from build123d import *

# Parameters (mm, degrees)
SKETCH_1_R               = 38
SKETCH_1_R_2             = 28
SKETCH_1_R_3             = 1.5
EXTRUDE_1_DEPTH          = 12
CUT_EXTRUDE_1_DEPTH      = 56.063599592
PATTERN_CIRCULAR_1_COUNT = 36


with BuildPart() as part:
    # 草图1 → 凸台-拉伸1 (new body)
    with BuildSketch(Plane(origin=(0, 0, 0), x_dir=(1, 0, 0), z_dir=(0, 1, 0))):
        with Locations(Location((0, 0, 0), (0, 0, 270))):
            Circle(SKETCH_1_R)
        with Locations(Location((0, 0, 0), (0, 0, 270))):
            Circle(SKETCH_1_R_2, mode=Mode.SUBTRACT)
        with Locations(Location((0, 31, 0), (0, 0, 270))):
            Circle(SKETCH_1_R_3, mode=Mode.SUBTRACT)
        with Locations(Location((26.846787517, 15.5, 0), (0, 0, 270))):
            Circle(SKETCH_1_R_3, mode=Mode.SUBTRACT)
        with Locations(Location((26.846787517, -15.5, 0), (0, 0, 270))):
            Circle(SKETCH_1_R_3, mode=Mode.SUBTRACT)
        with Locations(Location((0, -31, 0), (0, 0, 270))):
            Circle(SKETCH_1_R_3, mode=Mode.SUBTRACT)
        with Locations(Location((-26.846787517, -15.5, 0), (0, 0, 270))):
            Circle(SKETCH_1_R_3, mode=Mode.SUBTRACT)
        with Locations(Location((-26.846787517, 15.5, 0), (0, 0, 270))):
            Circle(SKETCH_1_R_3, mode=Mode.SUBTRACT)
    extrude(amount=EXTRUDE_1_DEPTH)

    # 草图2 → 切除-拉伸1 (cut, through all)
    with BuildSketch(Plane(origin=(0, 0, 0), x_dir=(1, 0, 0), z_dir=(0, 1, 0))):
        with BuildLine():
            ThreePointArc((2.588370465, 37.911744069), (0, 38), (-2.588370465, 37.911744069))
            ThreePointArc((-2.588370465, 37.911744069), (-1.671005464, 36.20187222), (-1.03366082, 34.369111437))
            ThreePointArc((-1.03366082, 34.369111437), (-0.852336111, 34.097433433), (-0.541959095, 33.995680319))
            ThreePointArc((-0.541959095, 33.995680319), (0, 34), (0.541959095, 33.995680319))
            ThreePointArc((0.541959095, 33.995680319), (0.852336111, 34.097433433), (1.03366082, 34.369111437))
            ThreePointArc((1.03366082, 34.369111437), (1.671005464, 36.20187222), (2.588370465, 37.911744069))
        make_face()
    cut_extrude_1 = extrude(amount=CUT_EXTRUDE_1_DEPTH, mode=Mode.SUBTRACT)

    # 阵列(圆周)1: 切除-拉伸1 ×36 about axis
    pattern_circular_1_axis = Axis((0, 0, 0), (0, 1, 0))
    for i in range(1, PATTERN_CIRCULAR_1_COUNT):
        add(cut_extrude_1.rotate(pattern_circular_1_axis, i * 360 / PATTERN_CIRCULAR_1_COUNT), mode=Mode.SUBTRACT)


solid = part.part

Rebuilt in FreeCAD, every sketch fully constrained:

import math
import FreeCAD as App
import Part
import Sketcher
from FreeCAD import Vector

doc = App.newDocument("Part")
body = doc.addObject("PartDesign::Body", "Body")

sketch1 = body.newObject("Sketcher::SketchObject", "Sketch")
sketch1.AttachmentSupport = (doc.getObject("XZ_Plane"), [""])
sketch1.MapMode = "FlatFace"
sketch1.addGeometry(Part.Circle(Vector(0, 0, 0), Vector(0, 0, 1), 38), False)
sketch1.addGeometry(Part.Circle(Vector(-26.8, -15.5, 0), Vector(0, 0, 1), 1.5), False)
sketch1.addGeometry(Part.Circle(Vector(0, -31, 0), Vector(0, 0, 1), 1.5), False)
sketch1.addGeometry(Part.Circle(Vector(-26.8, 15.5, 0), Vector(0, 0, 1), 1.5), False)
sketch1.addGeometry(Part.Circle(Vector(26.8, -15.5, 0), Vector(0, 0, 1), 1.5), False)
sketch1.addGeometry(Part.Circle(Vector(0, 0, 0), Vector(0, 0, 1), 28), False)
sketch1.addGeometry(Part.Circle(Vector(0, 31, 0), Vector(0, 0, 1), 1.5), False)
sketch1.addGeometry(Part.Circle(Vector(26.8, 15.5, 0), Vector(0, 0, 1), 1.5), False)
sketch1.addConstraint(Sketcher.Constraint("Coincident", 0, 3, -1, 1))
sketch1.addConstraint(Sketcher.Constraint("Coincident", 5, 3, -1, 1))
sketch1.addConstraint(Sketcher.Constraint("Equal", 1, 2))
sketch1.addConstraint(Sketcher.Constraint("Equal", 2, 3))
sketch1.addConstraint(Sketcher.Constraint("Equal", 3, 4))
sketch1.addConstraint(Sketcher.Constraint("Equal", 4, 6))
sketch1.addConstraint(Sketcher.Constraint("Equal", 6, 7))
sketch1.addConstraint(Sketcher.Constraint("Symmetric", 3, 3, 4, 3, -1, 1))
sketch1.addConstraint(Sketcher.Constraint("Symmetric", 2, 3, 6, 3, -1, 1))
sketch1.addConstraint(Sketcher.Constraint("Symmetric", 1, 3, 7, 3, -1, 1))
sketch1.addConstraint(Sketcher.Constraint("Symmetric", 1, 3, 4, 3, -2))
sketch1.addConstraint(Sketcher.Constraint("PointOnObject", 2, 3, -2))
sketch1.addConstraint(Sketcher.Constraint("Diameter", 0, 76.0))
sketch1.addConstraint(Sketcher.Constraint("Diameter", 1, 3.0))
sketch1.addConstraint(Sketcher.Constraint("Diameter", 5, 56.0))
sketch1.addConstraint(Sketcher.Constraint("DistanceY", 2, 3, -1, 1, 31.0))
sketch1.addConstraint(Sketcher.Constraint("DistanceY", 1, 3, 3, 3, 31.0))
sketch1.addConstraint(Sketcher.Constraint("DistanceX", 1, 3, -1, 1, 26.846788))
pad1 = body.newObject("PartDesign::Pad", "Pad")
pad1.Profile = sketch1
pad1.Length = 12
pad1.Reversed = True

sketch2 = body.newObject("Sketcher::SketchObject", "Sketch001")
sketch2.AttachmentSupport = (doc.getObject("XZ_Plane"), [""])
sketch2.MapMode = "FlatFace"
sketch2.addGeometry(Part.ArcOfCircle(Part.Circle(Vector(0, 0, 0), Vector(0, 0, 1), 38), math.radians(-93.91), math.radians(-86.09)), False)
sketch2.addGeometry(Part.ArcOfCircle(Part.Circle(Vector(-12.95, -31.25, 0), Vector(0, 0, 1), 12.31), math.radians(-32.73), math.radians(-14.66)), False)
sketch2.addGeometry(Part.ArcOfCircle(Part.Circle(Vector(-0.55, -34.5, 0), Vector(0, 0, 1), 0.5), math.radians(89), math.radians(165)), False)
sketch2.addGeometry(Part.ArcOfCircle(Part.Circle(Vector(0, 0, 0), Vector(0, 0, 1), 34), math.radians(-90.91), math.radians(-89.09)), False)
sketch2.addGeometry(Part.ArcOfCircle(Part.Circle(Vector(0.55, -34.5, 0), Vector(0, 0, 1), 0.5), math.radians(15), math.radians(91)), False)
sketch2.addGeometry(Part.ArcOfCircle(Part.Circle(Vector(12.95, -31.25, 0), Vector(0, 0, 1), 12.31), math.radians(-165.34), math.radians(-147.27)), False)
sketch2.addConstraint(Sketcher.Constraint("Coincident", 0, 1, 1, 1))
sketch2.addConstraint(Sketcher.Constraint("Tangent", 1, 2, 2, 2))
sketch2.addConstraint(Sketcher.Constraint("Tangent", 2, 1, 3, 1))
sketch2.addConstraint(Sketcher.Constraint("Tangent", 3, 2, 4, 2))
sketch2.addConstraint(Sketcher.Constraint("Tangent", 4, 1, 5, 1))
sketch2.addConstraint(Sketcher.Constraint("Coincident", 5, 2, 0, 2))
sketch2.addConstraint(Sketcher.Constraint("Coincident", 0, 3, -1, 1))
sketch2.addConstraint(Sketcher.Constraint("Coincident", 3, 3, -1, 1))
sketch2.addConstraint(Sketcher.Constraint("Equal", 2, 4))
sketch2.addConstraint(Sketcher.Constraint("Equal", 1, 5))
sketch2.addConstraint(Sketcher.Constraint("Symmetric", 1, 3, 5, 3, -2))
sketch2.addConstraint(Sketcher.Constraint("Radius", 0, 38.0))
sketch2.addConstraint(Sketcher.Constraint("Radius", 3, 34.000001))
sketch2.addConstraint(Sketcher.Constraint("Radius", 2, 0.5))
sketch2.addConstraint(Sketcher.Constraint("Radius", 1, 12.312725))
sketch2.addConstraint(Sketcher.Constraint("DistanceX", 1, 3, 4, 3, 13.495702))
sketch2.addConstraint(Sketcher.Constraint("DistanceX", 0, 1, 4, 3, 3.1383))
pocket1 = body.newObject("PartDesign::Pocket", "Pocket")
pocket1.Profile = sketch2
pocket1.Type = "ThroughAll"
doc.recompute()

polarpattern = body.newObject("PartDesign::PolarPattern", "PolarPattern")
polarpattern.Originals = [pocket1]
polarpattern.Axis = (doc.getObject("Y_Axis"), [""])
polarpattern.Angle = 360
polarpattern.Occurrences = 36
body.Tip = polarpattern

doc.recompute()
